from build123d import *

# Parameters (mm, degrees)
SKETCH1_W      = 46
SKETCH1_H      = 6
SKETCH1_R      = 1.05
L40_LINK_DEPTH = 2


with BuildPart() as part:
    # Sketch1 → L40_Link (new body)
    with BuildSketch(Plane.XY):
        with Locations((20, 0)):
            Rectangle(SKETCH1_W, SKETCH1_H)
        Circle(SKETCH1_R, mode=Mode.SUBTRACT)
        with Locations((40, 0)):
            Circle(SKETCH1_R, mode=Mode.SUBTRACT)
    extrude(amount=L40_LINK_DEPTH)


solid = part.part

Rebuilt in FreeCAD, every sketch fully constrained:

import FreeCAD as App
import Part
import Sketcher
from FreeCAD import Vector


def add_polygon(sketch, points):
    """Adds a closed chain of lines whose ends are joined by coincident constraints."""
    first, n = sketch.GeometryCount, len(points)
    for a, b in zip(points, points[1:] + points[:1]):
        sketch.addGeometry(Part.LineSegment(App.Vector(*a, 0), App.Vector(*b, 0)), False)
    for i in range(n):
        sketch.addConstraint(Sketcher.Constraint("Coincident", first + i, 2, first + (i + 1) % n, 1))

doc = App.newDocument("Part")
body = doc.addObject("PartDesign::Body", "Body")

sketch1 = body.newObject("Sketcher::SketchObject", "Sketch")
sketch1.AttachmentSupport = (doc.getObject("XY_Plane"), [""])
sketch1.MapMode = "FlatFace"
add_polygon(sketch1, [(-3, 3), (-3, -3), (43, -3), (43, 3)])
sketch1.addGeometry(Part.Circle(Vector(0, 0, 0), Vector(0, 0, 1), 1.1), False)
sketch1.addGeometry(Part.Circle(Vector(40, 0, 0), Vector(0, 0, 1), 1.1), False)
sketch1.addConstraint([
    Sketcher.Constraint("Vertical", 0),
    Sketcher.Constraint("Horizontal", 1),
    Sketcher.Constraint("Vertical", 2),
    Sketcher.Constraint("Horizontal", 3),
    Sketcher.Constraint("Coincident", 4, 3, -1, 1),
    Sketcher.Constraint("Equal", 4, 5),
    Sketcher.Constraint("PointOnObject", 5, 3, -1),
    Sketcher.Constraint("Diameter", 4, 2.1),
    Sketcher.Constraint("DistanceX", 1, 1, 1, 2, 46.0),
    Sketcher.Constraint("DistanceY", 0, 2, 0, 1, 6.0),
    Sketcher.Constraint("DistanceX", -1, 1, 5, 3, 40.0),
    Sketcher.Constraint("DistanceX", 0, 2, -1, 1, 3.0),
    Sketcher.Constraint("DistanceY", 0, 2, -1, 1, 3.0),
])
pad1 = body.newObject("PartDesign::Pad", "Pad")
pad1.Profile = sketch1
pad1.Length = 2

doc.recompute()
